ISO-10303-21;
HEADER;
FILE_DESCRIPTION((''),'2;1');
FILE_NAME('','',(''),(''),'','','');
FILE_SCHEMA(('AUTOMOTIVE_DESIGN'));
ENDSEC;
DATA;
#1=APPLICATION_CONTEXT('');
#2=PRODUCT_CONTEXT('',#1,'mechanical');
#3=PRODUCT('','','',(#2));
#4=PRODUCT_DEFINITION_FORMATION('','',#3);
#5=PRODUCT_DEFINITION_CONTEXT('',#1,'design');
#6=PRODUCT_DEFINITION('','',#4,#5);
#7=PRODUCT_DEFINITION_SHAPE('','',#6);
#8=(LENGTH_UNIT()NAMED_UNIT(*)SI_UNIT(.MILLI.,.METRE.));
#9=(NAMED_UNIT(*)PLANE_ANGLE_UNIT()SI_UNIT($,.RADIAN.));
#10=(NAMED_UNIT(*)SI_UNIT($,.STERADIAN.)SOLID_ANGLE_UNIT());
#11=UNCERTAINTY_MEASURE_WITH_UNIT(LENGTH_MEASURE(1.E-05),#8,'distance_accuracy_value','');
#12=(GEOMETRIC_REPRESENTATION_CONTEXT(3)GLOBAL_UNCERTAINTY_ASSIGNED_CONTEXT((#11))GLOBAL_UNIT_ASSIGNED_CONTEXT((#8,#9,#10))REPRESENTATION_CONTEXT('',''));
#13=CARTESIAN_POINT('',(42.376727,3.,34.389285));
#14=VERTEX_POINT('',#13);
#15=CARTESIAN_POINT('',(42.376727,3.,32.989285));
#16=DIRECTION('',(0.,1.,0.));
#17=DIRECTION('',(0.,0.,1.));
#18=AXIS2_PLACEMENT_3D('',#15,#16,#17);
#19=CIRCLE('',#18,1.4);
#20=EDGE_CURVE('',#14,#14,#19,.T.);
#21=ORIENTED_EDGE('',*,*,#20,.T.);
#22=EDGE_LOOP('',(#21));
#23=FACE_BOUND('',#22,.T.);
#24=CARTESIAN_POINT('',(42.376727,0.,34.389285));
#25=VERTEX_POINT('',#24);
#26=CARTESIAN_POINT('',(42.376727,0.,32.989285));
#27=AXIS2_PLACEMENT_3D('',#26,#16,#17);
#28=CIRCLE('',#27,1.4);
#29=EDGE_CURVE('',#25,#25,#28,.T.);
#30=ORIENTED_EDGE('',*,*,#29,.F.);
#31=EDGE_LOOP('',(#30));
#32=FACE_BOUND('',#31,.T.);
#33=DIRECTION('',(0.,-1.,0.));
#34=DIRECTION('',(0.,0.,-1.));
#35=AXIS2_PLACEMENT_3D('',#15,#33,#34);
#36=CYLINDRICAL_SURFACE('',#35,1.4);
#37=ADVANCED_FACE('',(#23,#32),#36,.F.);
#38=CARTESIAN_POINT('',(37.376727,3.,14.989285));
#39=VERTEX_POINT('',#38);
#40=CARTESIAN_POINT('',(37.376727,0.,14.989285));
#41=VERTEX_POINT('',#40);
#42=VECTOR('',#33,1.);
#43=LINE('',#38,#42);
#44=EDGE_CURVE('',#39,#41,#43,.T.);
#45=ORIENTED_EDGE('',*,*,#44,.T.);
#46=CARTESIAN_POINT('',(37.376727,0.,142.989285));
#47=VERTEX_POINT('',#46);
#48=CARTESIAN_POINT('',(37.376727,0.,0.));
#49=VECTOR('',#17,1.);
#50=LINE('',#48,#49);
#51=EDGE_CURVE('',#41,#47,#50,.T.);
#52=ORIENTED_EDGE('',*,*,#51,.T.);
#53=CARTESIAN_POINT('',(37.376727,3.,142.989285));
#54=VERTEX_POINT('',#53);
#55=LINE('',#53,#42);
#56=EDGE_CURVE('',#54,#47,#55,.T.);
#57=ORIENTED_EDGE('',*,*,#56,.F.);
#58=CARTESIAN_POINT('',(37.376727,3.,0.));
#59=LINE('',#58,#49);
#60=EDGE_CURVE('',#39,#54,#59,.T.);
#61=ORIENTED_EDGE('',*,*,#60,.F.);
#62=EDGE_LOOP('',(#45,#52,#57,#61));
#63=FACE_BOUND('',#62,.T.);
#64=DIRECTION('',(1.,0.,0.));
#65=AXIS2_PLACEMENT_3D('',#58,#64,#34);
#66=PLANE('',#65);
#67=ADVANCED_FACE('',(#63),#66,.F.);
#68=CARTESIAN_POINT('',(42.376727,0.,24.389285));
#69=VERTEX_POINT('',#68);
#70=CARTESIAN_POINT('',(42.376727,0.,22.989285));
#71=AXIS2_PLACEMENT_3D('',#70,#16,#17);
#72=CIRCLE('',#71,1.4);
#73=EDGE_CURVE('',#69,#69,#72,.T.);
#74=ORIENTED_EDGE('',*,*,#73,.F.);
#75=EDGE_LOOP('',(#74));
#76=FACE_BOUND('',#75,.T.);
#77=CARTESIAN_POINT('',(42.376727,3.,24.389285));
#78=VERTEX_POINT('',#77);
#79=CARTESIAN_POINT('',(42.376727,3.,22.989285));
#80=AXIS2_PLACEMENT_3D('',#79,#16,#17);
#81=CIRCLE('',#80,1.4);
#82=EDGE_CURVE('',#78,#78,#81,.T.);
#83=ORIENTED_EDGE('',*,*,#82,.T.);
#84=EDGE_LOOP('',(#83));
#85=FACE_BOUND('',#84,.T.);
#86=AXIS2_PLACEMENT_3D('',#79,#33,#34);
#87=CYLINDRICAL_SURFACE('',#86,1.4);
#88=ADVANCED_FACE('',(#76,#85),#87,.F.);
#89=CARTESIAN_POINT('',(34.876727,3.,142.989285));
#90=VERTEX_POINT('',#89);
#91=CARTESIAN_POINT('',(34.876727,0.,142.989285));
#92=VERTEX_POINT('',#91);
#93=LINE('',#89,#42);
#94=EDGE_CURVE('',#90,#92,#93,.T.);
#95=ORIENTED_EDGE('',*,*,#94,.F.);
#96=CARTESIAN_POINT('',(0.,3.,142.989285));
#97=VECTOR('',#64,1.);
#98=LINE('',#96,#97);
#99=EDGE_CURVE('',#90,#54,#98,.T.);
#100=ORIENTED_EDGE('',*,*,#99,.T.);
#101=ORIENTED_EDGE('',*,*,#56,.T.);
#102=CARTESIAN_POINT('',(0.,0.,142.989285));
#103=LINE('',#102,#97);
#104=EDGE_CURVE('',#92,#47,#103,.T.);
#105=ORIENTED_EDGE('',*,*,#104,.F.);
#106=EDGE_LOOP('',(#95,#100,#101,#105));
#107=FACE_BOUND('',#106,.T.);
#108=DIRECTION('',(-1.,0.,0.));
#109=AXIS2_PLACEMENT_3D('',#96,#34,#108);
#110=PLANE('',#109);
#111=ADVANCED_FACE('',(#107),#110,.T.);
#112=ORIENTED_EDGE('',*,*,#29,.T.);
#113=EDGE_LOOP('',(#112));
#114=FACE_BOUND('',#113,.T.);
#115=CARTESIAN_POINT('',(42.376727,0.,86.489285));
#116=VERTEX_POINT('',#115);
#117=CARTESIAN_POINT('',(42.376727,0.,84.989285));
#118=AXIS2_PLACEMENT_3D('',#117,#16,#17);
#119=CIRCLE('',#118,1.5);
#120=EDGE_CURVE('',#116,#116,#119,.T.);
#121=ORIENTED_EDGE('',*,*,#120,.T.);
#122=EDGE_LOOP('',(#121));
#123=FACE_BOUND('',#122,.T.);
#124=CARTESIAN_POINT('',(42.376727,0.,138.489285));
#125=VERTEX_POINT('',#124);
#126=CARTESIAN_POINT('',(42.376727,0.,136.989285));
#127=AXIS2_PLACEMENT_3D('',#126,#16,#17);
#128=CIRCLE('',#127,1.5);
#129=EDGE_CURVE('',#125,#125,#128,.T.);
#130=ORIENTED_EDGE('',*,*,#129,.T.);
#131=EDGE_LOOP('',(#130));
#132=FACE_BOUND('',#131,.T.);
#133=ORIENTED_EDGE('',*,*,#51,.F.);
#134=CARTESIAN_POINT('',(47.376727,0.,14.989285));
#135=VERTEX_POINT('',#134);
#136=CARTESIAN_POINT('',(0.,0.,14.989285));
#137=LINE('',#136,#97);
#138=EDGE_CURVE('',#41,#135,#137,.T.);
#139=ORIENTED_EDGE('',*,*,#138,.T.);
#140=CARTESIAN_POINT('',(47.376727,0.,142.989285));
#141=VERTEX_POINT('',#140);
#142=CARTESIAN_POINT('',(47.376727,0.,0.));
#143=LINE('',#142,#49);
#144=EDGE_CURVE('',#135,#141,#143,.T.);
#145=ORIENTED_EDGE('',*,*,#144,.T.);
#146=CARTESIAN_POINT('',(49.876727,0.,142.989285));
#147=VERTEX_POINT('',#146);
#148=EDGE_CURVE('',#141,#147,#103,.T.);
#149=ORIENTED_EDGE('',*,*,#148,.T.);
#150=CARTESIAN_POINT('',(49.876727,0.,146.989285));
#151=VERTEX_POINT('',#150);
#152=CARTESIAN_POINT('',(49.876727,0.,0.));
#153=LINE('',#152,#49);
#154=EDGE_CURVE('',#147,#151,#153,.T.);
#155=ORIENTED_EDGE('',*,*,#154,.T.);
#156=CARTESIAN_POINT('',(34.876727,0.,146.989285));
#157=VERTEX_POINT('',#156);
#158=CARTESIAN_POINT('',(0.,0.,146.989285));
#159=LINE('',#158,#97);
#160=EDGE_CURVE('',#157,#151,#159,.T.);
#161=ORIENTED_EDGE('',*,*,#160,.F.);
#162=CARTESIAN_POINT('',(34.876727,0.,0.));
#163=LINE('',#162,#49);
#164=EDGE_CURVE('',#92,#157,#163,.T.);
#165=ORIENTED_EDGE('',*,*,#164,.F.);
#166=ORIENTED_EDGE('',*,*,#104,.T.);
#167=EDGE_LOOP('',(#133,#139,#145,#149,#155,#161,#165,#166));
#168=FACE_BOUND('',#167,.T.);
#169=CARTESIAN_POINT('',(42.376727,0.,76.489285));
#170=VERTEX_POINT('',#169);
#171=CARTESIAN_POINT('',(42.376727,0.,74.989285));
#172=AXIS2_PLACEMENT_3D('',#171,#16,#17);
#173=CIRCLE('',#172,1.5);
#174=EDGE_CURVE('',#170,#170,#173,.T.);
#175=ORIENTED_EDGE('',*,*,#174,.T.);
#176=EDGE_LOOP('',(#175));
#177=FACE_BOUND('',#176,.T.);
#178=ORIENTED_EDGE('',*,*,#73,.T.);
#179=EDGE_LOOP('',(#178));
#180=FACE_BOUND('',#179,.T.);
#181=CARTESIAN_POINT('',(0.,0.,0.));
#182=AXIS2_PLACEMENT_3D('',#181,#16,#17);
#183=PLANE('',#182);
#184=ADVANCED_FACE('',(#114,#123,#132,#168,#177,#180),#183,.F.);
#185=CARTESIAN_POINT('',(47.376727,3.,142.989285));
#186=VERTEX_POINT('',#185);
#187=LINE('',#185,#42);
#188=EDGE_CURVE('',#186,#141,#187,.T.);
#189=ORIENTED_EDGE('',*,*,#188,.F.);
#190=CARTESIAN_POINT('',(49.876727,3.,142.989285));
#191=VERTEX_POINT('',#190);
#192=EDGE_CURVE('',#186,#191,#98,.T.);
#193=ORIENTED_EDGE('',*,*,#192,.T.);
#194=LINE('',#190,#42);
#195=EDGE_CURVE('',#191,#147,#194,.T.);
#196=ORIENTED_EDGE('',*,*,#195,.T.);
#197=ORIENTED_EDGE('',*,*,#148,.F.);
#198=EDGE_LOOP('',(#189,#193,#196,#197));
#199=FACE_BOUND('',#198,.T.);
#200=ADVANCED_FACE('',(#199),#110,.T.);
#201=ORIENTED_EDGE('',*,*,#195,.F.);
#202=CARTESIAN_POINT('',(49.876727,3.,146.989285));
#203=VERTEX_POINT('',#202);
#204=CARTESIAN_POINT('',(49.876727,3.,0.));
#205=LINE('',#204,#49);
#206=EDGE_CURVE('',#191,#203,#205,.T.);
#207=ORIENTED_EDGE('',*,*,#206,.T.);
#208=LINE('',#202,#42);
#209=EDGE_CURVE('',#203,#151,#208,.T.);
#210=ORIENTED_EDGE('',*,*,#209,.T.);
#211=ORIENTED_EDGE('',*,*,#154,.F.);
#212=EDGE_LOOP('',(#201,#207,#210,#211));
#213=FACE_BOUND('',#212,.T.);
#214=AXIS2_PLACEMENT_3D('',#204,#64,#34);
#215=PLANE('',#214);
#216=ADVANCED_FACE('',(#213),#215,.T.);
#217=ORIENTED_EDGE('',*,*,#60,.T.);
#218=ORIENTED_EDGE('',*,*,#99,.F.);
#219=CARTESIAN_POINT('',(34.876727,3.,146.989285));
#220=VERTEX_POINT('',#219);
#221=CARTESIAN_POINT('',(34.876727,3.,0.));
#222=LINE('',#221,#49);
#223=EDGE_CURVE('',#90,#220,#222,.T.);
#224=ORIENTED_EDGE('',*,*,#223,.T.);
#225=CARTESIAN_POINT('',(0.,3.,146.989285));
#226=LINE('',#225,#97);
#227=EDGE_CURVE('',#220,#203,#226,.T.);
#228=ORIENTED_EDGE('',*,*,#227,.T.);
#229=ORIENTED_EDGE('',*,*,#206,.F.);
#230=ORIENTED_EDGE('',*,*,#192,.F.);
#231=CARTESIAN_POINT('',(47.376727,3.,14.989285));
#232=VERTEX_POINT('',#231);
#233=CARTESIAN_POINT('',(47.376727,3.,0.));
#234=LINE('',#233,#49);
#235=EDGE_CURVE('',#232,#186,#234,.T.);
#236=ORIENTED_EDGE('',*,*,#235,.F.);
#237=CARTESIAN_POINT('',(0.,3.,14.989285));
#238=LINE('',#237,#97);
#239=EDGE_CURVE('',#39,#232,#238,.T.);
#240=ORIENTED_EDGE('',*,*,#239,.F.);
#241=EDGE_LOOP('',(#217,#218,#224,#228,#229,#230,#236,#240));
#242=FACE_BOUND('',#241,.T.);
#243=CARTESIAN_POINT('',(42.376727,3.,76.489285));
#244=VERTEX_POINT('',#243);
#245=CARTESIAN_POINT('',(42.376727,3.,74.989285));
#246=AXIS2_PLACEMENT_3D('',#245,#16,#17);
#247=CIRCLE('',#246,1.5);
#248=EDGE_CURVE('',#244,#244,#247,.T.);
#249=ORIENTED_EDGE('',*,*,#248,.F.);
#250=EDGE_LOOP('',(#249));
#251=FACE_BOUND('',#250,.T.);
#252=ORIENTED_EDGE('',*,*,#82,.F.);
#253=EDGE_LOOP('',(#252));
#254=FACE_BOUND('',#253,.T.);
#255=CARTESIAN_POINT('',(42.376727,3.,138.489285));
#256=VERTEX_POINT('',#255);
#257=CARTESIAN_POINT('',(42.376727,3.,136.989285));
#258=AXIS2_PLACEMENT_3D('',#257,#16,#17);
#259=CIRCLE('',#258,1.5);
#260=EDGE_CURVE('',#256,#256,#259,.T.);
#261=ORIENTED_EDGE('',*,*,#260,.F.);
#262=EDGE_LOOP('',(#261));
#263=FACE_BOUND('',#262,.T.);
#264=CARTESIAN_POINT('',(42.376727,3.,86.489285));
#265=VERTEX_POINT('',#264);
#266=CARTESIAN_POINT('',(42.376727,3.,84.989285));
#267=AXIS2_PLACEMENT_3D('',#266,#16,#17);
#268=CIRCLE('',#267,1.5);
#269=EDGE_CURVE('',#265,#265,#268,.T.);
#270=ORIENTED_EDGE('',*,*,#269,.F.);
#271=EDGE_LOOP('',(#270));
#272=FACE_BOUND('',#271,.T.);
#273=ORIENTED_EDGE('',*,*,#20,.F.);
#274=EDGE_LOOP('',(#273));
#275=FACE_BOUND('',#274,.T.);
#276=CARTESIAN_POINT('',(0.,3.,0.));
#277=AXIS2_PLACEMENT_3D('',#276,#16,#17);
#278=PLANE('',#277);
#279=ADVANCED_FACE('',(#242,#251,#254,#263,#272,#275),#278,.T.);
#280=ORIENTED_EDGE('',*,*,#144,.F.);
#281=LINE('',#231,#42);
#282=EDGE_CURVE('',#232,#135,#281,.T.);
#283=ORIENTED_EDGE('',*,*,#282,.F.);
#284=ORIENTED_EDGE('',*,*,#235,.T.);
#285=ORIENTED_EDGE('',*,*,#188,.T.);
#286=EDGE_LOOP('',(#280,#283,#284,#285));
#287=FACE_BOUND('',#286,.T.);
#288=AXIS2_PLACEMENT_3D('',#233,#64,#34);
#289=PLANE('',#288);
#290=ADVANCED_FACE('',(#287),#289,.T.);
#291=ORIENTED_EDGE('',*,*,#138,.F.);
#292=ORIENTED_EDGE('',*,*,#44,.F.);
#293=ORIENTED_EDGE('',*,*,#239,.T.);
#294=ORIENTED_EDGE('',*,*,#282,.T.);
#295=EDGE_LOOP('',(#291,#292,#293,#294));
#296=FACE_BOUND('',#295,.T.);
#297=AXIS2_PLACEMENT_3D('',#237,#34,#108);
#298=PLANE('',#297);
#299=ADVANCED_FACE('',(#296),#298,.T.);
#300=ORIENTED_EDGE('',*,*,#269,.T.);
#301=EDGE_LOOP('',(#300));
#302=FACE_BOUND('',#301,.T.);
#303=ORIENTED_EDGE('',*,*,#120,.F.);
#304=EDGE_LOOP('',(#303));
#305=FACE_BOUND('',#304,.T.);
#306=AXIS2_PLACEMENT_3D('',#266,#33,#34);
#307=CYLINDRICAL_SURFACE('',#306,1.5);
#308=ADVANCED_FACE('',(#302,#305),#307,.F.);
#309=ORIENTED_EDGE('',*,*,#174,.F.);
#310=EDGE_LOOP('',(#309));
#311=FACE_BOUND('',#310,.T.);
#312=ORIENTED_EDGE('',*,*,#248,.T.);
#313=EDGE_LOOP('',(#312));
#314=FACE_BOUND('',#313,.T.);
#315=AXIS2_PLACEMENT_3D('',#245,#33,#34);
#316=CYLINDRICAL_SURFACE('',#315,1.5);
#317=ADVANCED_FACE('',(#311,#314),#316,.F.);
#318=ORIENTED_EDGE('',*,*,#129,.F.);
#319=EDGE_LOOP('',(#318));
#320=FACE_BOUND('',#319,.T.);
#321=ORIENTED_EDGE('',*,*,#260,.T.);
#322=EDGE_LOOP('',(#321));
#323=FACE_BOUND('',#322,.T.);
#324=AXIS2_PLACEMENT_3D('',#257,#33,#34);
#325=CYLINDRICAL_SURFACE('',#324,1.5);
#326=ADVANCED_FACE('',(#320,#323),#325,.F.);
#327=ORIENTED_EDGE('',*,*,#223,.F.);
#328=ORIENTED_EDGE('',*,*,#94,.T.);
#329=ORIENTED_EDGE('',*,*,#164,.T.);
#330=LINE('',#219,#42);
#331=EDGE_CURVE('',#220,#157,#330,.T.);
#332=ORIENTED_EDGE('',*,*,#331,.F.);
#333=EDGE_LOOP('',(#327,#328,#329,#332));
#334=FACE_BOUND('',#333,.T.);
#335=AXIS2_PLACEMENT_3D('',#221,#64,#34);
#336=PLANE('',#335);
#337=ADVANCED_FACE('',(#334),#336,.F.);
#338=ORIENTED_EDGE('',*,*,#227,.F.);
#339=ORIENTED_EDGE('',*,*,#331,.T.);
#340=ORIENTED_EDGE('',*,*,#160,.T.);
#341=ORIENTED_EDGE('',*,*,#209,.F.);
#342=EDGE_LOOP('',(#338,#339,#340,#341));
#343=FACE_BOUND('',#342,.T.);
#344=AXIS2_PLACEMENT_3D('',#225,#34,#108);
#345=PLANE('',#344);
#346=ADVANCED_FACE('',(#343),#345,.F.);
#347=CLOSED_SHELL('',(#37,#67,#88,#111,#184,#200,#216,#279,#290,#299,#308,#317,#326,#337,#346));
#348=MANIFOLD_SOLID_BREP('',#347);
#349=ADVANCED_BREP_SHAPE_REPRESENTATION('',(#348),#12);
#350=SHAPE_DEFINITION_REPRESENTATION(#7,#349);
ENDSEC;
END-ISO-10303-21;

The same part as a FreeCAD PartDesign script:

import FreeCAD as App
import Part
import Sketcher


def add_polygon(sketch, points):
    """Adds a closed chain of lines whose ends are joined by coincident constraints."""
    first, n = sketch.GeometryCount, len(points)
    for a, b in zip(points, points[1:] + points[:1]):
        sketch.addGeometry(Part.LineSegment(App.Vector(*a, 0), App.Vector(*b, 0)), False)
    for i in range(n):
        sketch.addConstraint(Sketcher.Constraint("Coincident", first + i, 2, first + (i + 1) % n, 1))

doc = App.newDocument("Part")
params = doc.addObject("Spreadsheet::Sheet", "Params")
for row, (alias, value) in enumerate([
    ("sketch1_diameter", "3 mm"),
    ("sketch1_diameter2", "2.8 mm"),
    ("sketch1_width", "15 mm"),
    ("sketch1_width2", "10 mm"),
    ("sketch1_height", "4 mm"),
    ("pad1_length", "3 mm"),
], start=1):
    params.set(f"A{row}", alias)
    params.set(f"B{row}", "=" + value)
    params.setAlias(f"B{row}", alias)

body = doc.addObject("PartDesign::Body", "Body")

# Sketch on XZ plane
sketch1 = body.newObject("Sketcher::SketchObject", "Sketch")
sketch1.AttachmentSupport = (doc.getObject("XZ_Plane"), [""])
sketch1.MapMode = "FlatFace"
add_polygon(sketch1, [(34.9, 143), (34.9, 147), (49.9, 147), (49.9, 143), (47.4, 143), (47.4, 15), (37.4, 15), (37.4, 143)])  # lines 0-7
sketch1.addGeometry(Part.Circle(App.Vector(42.4, 23, 0), App.Vector(0, 0, 1), 1.4), False)  # 8
sketch1.addGeometry(Part.Circle(App.Vector(42.4, 137, 0), App.Vector(0, 0, 1), 1.5), False)  # 9
sketch1.addGeometry(Part.Circle(App.Vector(42.4, 85, 0), App.Vector(0, 0, 1), 1.5), False)  # 10
sketch1.addGeometry(Part.Circle(App.Vector(42.4, 75, 0), App.Vector(0, 0, 1), 1.5), False)  # 11
sketch1.addGeometry(Part.Circle(App.Vector(42.4, 33, 0), App.Vector(0, 0, 1), 1.4), False)  # 12
sketch1.addConstraint(Sketcher.Constraint("Vertical", 0))
sketch1.addConstraint(Sketcher.Constraint("Horizontal", 1))
sketch1.addConstraint(Sketcher.Constraint("Vertical", 2))
sketch1.addConstraint(Sketcher.Constraint("Horizontal", 3))
sketch1.addConstraint(Sketcher.Constraint("Vertical", 4))
sketch1.addConstraint(Sketcher.Constraint("Horizontal", 5))
sketch1.addConstraint(Sketcher.Constraint("Vertical", 6))
sketch1.addConstraint(Sketcher.Constraint("Horizontal", 7))
sketch1.addConstraint(Sketcher.Constraint("Equal", 9, 10))
sketch1.addConstraint(Sketcher.Constraint("Equal", 10, 11))
sketch1.addConstraint(Sketcher.Constraint("Equal", 8, 12))
sketch1.addConstraint(Sketcher.Constraint("Horizontal", 3, 2, 6, 2))
sketch1.addConstraint(Sketcher.Constraint("Vertical", 8, 3, 9, 3))
sketch1.addConstraint(Sketcher.Constraint("Vertical", 9, 3, 10, 3))
sketch1.addConstraint(Sketcher.Constraint("Vertical", 10, 3, 11, 3))
sketch1.addConstraint(Sketcher.Constraint("Vertical", 11, 3, 12, 3))
sketch1.addConstraint(Sketcher.Constraint("Equal", 3, 7))
sketch1.addConstraint(Sketcher.Constraint("Diameter", 9, 3.0))
sketch1.addConstraint(Sketcher.Constraint("Diameter", 8, 2.8))
sketch1.addConstraint(Sketcher.Constraint("DistanceX", 1, 1, 1, 2, 15.0))
sketch1.addConstraint(Sketcher.Constraint("DistanceX", 5, 2, 5, 1, 10.0))
sketch1.addConstraint(Sketcher.Constraint("DistanceY", 0, 1, 0, 2, 4.0))
sketch1.addConstraint(Sketcher.Constraint("DistanceY", 4, 2, 4, 1, 128.0))
sketch1.addConstraint(Sketcher.Constraint("DistanceY", 8, 3, 9, 3, 114.0))
sketch1.addConstraint(Sketcher.Constraint("DistanceY", 10, 3, 9, 3, 52.0))
sketch1.addConstraint(Sketcher.Constraint("DistanceY", 11, 3, 10, 3, 10.0))
sketch1.addConstraint(Sketcher.Constraint("DistanceY", 8, 3, 12, 3, 10.0))
sketch1.addConstraint(Sketcher.Constraint("DistanceY", 9, 3, 0, 2, 10.0))
sketch1.addConstraint(Sketcher.Constraint("DistanceX", 9, 3, 3, 2, 5.0))
sketch1.addConstraint(Sketcher.Constraint("DistanceX", -1, 1, 8, 3, 42.376727))
sketch1.addConstraint(Sketcher.Constraint("DistanceY", -1, 1, 8, 3, 22.989285))
sketch1.setExpression("Constraints[25]", "Params.sketch1_diameter")
sketch1.setExpression("Constraints[26]", "Params.sketch1_diameter2")
sketch1.setExpression("Constraints[27]", "Params.sketch1_width")
sketch1.setExpression("Constraints[28]", "Params.sketch1_width2")
sketch1.setExpression("Constraints[29]", "Params.sketch1_height")
pad1 = body.newObject("PartDesign::Pad", "Pad")
pad1.Profile = sketch1
pad1.setExpression("Length", "Params.pad1_length")
pad1.Reversed = True

doc.recompute()
